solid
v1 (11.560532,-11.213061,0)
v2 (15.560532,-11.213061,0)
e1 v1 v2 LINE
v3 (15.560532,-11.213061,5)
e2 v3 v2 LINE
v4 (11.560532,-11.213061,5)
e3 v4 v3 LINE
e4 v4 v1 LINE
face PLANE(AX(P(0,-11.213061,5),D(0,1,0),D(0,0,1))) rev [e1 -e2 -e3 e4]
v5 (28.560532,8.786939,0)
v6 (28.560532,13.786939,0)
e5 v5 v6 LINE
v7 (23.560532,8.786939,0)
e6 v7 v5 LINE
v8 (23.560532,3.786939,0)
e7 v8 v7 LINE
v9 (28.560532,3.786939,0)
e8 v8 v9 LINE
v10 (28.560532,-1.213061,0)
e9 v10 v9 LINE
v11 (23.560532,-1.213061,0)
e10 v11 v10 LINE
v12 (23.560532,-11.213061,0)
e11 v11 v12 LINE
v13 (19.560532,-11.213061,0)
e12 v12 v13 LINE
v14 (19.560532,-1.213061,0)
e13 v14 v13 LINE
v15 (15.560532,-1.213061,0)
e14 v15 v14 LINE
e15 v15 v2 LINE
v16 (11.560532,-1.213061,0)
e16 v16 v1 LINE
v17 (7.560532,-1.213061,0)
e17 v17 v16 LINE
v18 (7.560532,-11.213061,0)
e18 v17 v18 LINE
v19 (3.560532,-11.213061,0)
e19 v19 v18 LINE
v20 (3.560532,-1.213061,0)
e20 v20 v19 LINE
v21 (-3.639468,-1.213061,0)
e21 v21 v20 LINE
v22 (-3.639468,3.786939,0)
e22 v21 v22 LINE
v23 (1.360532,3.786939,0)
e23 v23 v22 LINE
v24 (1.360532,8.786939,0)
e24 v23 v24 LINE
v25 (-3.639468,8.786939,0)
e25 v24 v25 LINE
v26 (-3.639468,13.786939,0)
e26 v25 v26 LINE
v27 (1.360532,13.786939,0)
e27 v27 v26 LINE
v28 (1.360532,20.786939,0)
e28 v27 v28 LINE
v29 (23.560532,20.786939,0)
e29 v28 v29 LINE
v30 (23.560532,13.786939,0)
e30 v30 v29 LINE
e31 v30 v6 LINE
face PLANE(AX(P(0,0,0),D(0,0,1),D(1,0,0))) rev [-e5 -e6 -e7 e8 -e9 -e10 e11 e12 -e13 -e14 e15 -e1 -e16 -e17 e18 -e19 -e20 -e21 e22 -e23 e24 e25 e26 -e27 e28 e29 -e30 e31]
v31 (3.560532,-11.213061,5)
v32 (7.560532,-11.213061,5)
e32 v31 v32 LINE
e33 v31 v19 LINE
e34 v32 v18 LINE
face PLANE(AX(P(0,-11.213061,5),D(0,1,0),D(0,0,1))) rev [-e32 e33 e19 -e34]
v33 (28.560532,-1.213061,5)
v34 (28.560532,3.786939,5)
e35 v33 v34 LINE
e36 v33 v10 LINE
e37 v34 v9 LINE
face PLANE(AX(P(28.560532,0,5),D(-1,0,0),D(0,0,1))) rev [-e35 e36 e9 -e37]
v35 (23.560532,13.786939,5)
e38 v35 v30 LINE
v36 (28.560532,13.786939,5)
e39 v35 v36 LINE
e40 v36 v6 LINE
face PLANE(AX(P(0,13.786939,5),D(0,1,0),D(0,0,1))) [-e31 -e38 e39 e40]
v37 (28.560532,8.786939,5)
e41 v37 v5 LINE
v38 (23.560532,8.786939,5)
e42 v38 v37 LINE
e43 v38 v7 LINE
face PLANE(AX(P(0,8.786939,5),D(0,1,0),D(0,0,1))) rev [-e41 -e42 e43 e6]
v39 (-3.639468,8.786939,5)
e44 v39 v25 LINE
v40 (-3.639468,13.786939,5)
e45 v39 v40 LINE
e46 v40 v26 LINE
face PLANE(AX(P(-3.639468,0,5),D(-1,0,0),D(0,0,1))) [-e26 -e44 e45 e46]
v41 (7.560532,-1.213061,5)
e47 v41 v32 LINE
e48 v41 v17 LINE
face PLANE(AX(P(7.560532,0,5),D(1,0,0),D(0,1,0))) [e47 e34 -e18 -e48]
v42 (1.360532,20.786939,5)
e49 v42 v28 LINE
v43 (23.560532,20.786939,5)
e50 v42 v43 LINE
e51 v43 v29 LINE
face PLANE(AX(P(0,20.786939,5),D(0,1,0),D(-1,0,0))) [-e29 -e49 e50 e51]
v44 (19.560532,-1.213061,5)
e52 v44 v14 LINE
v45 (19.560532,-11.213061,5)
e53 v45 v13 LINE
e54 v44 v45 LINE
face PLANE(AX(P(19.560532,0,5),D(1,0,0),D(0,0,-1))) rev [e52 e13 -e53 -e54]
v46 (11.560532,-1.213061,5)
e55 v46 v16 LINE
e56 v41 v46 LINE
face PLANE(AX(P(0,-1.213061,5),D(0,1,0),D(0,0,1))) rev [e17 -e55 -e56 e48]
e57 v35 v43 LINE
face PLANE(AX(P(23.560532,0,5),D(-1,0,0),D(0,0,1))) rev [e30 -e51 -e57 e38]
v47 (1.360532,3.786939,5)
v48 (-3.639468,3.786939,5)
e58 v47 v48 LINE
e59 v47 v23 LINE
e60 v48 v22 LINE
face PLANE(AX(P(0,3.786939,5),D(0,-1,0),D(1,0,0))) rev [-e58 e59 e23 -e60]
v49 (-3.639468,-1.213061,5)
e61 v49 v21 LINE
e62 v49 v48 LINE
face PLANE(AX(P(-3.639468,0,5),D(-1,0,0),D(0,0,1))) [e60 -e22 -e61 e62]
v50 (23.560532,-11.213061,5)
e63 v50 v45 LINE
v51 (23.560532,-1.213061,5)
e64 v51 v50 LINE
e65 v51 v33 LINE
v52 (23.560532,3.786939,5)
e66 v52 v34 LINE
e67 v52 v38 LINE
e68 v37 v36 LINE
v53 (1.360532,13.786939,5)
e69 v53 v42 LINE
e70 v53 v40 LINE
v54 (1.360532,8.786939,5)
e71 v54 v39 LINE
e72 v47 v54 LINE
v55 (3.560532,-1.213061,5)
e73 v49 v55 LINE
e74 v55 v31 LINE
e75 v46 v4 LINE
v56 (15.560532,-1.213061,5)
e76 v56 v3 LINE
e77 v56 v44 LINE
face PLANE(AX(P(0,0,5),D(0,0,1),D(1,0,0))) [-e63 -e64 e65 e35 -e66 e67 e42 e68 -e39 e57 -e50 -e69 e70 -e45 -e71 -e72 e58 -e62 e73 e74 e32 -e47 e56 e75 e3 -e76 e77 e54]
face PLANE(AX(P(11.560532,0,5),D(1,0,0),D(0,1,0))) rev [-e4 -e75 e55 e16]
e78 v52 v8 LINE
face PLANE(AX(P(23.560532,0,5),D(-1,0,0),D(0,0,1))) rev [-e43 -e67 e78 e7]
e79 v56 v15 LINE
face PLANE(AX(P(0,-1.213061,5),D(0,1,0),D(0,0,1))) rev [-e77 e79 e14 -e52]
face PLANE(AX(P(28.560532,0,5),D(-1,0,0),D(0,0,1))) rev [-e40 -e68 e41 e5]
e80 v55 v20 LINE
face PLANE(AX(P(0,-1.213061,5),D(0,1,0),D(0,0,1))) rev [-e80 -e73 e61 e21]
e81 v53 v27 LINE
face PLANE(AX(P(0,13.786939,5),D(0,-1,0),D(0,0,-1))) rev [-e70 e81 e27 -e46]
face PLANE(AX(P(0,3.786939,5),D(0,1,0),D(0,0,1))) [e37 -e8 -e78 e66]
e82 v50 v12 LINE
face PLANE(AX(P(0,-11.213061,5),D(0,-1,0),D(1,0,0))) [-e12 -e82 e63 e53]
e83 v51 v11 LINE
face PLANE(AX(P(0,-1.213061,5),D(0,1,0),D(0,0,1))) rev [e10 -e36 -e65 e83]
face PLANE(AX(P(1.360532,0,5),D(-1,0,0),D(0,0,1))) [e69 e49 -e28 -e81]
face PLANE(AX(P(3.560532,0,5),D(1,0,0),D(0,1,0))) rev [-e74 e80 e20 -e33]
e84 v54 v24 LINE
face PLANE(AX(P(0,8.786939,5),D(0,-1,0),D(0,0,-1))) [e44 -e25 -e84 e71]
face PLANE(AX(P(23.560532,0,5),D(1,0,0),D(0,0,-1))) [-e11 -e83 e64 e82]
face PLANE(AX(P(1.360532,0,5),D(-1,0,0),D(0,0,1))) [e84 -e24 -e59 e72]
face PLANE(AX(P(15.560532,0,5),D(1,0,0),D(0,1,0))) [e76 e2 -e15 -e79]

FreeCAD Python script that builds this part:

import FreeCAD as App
import Part
import Sketcher

doc = App.newDocument("Part")
params = doc.addObject("Spreadsheet::Sheet", "Params")
for row, (alias, value) in enumerate([
    ("sketch1_width", "5 mm"),
    ("sketch1_width2", "4 mm"),
    ("sketch1_height", "10 mm"),
    ("sketch1_height2", "7 mm"),
    ("sketch1_width3", "7.2 mm"),
    ("pad1_length", "5 mm"),
], start=1):
    params.set(f"A{row}", alias)
    params.set(f"B{row}", "=" + value)
    params.setAlias(f"B{row}", alias)

body = doc.addObject("PartDesign::Body", "Body")

# Sketch on XY plane
sketch1 = body.newObject("Sketcher::SketchObject", "Sketch")
sketch1.AttachmentSupport = (doc.getObject("XY_Plane"), [""])
sketch1.MapMode = "FlatFace"
sketch1.addGeometry([
    Part.LineSegment(App.Vector(1.4, 3.8, 0), App.Vector(-3.6, 3.8, 0)),  # 0
    Part.LineSegment(App.Vector(-3.6, 3.8, 0), App.Vector(-3.6, -1.2, 0)),  # 1
    Part.LineSegment(App.Vector(-3.6, -1.2, 0), App.Vector(3.6, -1.2, 0)),  # 2
    Part.LineSegment(App.Vector(3.6, -1.2, 0), App.Vector(3.6, -11.2, 0)),  # 3
    Part.LineSegment(App.Vector(3.6, -11.2, 0), App.Vector(7.6, -11.2, 0)),  # 4
    Part.LineSegment(App.Vector(7.6, -11.2, 0), App.Vector(7.6, -1.2, 0)),  # 5
    Part.LineSegment(App.Vector(7.6, -1.2, 0), App.Vector(11.6, -1.2, 0)),  # 6
    Part.LineSegment(App.Vector(11.6, -1.2, 0), App.Vector(11.6, -11.2, 0)),  # 7
    Part.LineSegment(App.Vector(11.6, -11.2, 0), App.Vector(15.6, -11.2, 0)),  # 8
    Part.LineSegment(App.Vector(15.6, -11.2, 0), App.Vector(15.6, -1.2, 0)),  # 9
    Part.LineSegment(App.Vector(15.6, -1.2, 0), App.Vector(19.6, -1.2, 0)),  # 10
    Part.LineSegment(App.Vector(19.6, -1.2, 0), App.Vector(19.6, -11.2, 0)),  # 11
    Part.LineSegment(App.Vector(19.6, -11.2, 0), App.Vector(23.6, -11.2, 0)),  # 12
    Part.LineSegment(App.Vector(23.6, -11.2, 0), App.Vector(23.6, -1.2, 0)),  # 13
    Part.LineSegment(App.Vector(23.6, -1.2, 0), App.Vector(28.6, -1.2, 0)),  # 14
    Part.LineSegment(App.Vector(28.6, -1.2, 0), App.Vector(28.6, 3.8, 0)),  # 15
    Part.LineSegment(App.Vector(28.6, 3.8, 0), App.Vector(23.6, 3.8, 0)),  # 16
    Part.LineSegment(App.Vector(23.6, 3.8, 0), App.Vector(23.6, 8.8, 0)),  # 17
    Part.LineSegment(App.Vector(23.6, 8.8, 0), App.Vector(28.6, 8.8, 0)),  # 18
    Part.LineSegment(App.Vector(28.6, 8.8, 0), App.Vector(28.6, 13.8, 0)),  # 19
    Part.LineSegment(App.Vector(28.6, 13.8, 0), App.Vector(23.6, 13.8, 0)),  # 20
    Part.LineSegment(App.Vector(23.6, 13.8, 0), App.Vector(23.6, 20.8, 0)),  # 21
    Part.LineSegment(App.Vector(23.6, 20.8, 0), App.Vector(1.4, 20.8, 0)),  # 22
    Part.LineSegment(App.Vector(1.4, 20.8, 0), App.Vector(1.4, 13.8, 0)),  # 23
    Part.LineSegment(App.Vector(1.4, 13.8, 0), App.Vector(-3.6, 13.8, 0)),  # 24
    Part.LineSegment(App.Vector(-3.6, 13.8, 0), App.Vector(-3.6, 8.8, 0)),  # 25
    Part.LineSegment(App.Vector(-3.6, 8.8, 0), App.Vector(1.4, 8.8, 0)),  # 26
    Part.LineSegment(App.Vector(1.4, 8.8, 0), App.Vector(1.4, 3.8, 0)),  # 27
], False)
sketch1.addConstraint([
    Sketcher.Constraint("Coincident", 0, 2, 1, 1),
    Sketcher.Constraint("Coincident", 1, 2, 2, 1),
    Sketcher.Constraint("Coincident", 2, 2, 3, 1),
    Sketcher.Constraint("Coincident", 3, 2, 4, 1),
    Sketcher.Constraint("Coincident", 4, 2, 5, 1),
    Sketcher.Constraint("Coincident", 5, 2, 6, 1),
    Sketcher.Constraint("Coincident", 6, 2, 7, 1),
    Sketcher.Constraint("Coincident", 7, 2, 8, 1),
    Sketcher.Constraint("Coincident", 8, 2, 9, 1),
    Sketcher.Constraint("Coincident", 9, 2, 10, 1),
    Sketcher.Constraint("Coincident", 10, 2, 11, 1),
    Sketcher.Constraint("Coincident", 11, 2, 12, 1),
    Sketcher.Constraint("Coincident", 12, 2, 13, 1),
    Sketcher.Constraint("Coincident", 13, 2, 14, 1),
    Sketcher.Constraint("Coincident", 14, 2, 15, 1),
    Sketcher.Constraint("Coincident", 15, 2, 16, 1),
    Sketcher.Constraint("Coincident", 16, 2, 17, 1),
    Sketcher.Constraint("Coincident", 17, 2, 18, 1),
    Sketcher.Constraint("Coincident", 18, 2, 19, 1),
    Sketcher.Constraint("Coincident", 19, 2, 20, 1),
    Sketcher.Constraint("Coincident", 20, 2, 21, 1),
    Sketcher.Constraint("Coincident", 21, 2, 22, 1),
    Sketcher.Constraint("Coincident", 22, 2, 23, 1),
    Sketcher.Constraint("Coincident", 23, 2, 24, 1),
    Sketcher.Constraint("Coincident", 24, 2, 25, 1),
    Sketcher.Constraint("Coincident", 25, 2, 26, 1),
    Sketcher.Constraint("Coincident", 26, 2, 27, 1),
    Sketcher.Constraint("Coincident", 27, 2, 0, 1),
    Sketcher.Constraint("Horizontal", 0),
    Sketcher.Constraint("Vertical", 1),
    Sketcher.Constraint("Horizontal", 2),
    Sketcher.Constraint("Vertical", 3),
    Sketcher.Constraint("Horizontal", 4),
    Sketcher.Constraint("Vertical", 5),
    Sketcher.Constraint("Horizontal", 6),
    Sketcher.Constraint("Vertical", 7),
    Sketcher.Constraint("Horizontal", 8),
    Sketcher.Constraint("Vertical", 9),
    Sketcher.Constraint("Horizontal", 10),
    Sketcher.Constraint("Vertical", 11),
    Sketcher.Constraint("Horizontal", 12),
    Sketcher.Constraint("Vertical", 13),
    Sketcher.Constraint("Horizontal", 14),
    Sketcher.Constraint("Vertical", 15),
    Sketcher.Constraint("Horizontal", 16),
    Sketcher.Constraint("Vertical", 17),
    Sketcher.Constraint("Horizontal", 18),
    Sketcher.Constraint("Vertical", 19),
    Sketcher.Constraint("Horizontal", 20),
    Sketcher.Constraint("Vertical", 21),
    Sketcher.Constraint("Horizontal", 22),
    Sketcher.Constraint("Vertical", 23),
    Sketcher.Constraint("Horizontal", 24),
    Sketcher.Constraint("Vertical", 25),
    Sketcher.Constraint("Horizontal", 26),
    Sketcher.Constraint("Vertical", 27),
    Sketcher.Constraint("Horizontal", 2, 2, 5, 2),
    Sketcher.Constraint("Horizontal", 4, 2, 7, 2),
    Sketcher.Constraint("Horizontal", 6, 2, 9, 2),
    Sketcher.Constraint("Horizontal", 8, 2, 11, 2),
    Sketcher.Constraint("Horizontal", 10, 2, 13, 2),
    Sketcher.Constraint("Horizontal", 0, 2, 15, 2),
    Sketcher.Constraint("Horizontal", 20, 2, 23, 2),
    Sketcher.Constraint("Horizontal", 18, 2, 25, 2),
    Sketcher.Constraint("Vertical", 13, 2, 16, 2),
    Sketcher.Constraint("Vertical", 15, 2, 18, 2),
    Sketcher.Constraint("Vertical", 17, 2, 20, 2),
    Sketcher.Constraint("Vertical", 1, 2, 24, 2),
    Sketcher.Constraint("Vertical", 23, 2, 26, 2),
    Sketcher.Constraint("Equal", 4, 6),
    Sketcher.Constraint("Equal", 6, 8),
    Sketcher.Constraint("Equal", 8, 10),
    Sketcher.Constraint("Equal", 10, 12),
    Sketcher.Constraint("Equal", 0, 14),
    Sketcher.Constraint("Equal", 26, 1),
    Sketcher.Constraint("Equal", 15, 17),
    Sketcher.Constraint("Equal", 17, 19),
    Sketcher.Constraint("DistanceX", 0, 2, 0, 1, 5.0),
    Sketcher.Constraint("DistanceX", 4, 1, 4, 2, 4.0),
    Sketcher.Constraint("DistanceY", 3, 2, 3, 1, 10.0),
    Sketcher.Constraint("DistanceY", 21, 1, 21, 2, 7.0),
    Sketcher.Constraint("DistanceX", 2, 1, 2, 2, 7.2),
    Sketcher.Constraint("DistanceX", 0, 2, -1, 1, 3.639468),
    Sketcher.Constraint("DistanceY", -1, 1, 0, 2, 3.786939),
])
sketch1.setExpression("Constraints[77]", "Params.sketch1_width")
sketch1.setExpression("Constraints[78]", "Params.sketch1_width2")
sketch1.setExpression("Constraints[79]", "Params.sketch1_height")
sketch1.setExpression("Constraints[80]", "Params.sketch1_height2")
sketch1.setExpression("Constraints[81]", "Params.sketch1_width3")
pad1 = body.newObject("PartDesign::Pad", "Pad")
pad1.Profile = sketch1
pad1.setExpression("Length", "Params.pad1_length")

doc.recompute()
